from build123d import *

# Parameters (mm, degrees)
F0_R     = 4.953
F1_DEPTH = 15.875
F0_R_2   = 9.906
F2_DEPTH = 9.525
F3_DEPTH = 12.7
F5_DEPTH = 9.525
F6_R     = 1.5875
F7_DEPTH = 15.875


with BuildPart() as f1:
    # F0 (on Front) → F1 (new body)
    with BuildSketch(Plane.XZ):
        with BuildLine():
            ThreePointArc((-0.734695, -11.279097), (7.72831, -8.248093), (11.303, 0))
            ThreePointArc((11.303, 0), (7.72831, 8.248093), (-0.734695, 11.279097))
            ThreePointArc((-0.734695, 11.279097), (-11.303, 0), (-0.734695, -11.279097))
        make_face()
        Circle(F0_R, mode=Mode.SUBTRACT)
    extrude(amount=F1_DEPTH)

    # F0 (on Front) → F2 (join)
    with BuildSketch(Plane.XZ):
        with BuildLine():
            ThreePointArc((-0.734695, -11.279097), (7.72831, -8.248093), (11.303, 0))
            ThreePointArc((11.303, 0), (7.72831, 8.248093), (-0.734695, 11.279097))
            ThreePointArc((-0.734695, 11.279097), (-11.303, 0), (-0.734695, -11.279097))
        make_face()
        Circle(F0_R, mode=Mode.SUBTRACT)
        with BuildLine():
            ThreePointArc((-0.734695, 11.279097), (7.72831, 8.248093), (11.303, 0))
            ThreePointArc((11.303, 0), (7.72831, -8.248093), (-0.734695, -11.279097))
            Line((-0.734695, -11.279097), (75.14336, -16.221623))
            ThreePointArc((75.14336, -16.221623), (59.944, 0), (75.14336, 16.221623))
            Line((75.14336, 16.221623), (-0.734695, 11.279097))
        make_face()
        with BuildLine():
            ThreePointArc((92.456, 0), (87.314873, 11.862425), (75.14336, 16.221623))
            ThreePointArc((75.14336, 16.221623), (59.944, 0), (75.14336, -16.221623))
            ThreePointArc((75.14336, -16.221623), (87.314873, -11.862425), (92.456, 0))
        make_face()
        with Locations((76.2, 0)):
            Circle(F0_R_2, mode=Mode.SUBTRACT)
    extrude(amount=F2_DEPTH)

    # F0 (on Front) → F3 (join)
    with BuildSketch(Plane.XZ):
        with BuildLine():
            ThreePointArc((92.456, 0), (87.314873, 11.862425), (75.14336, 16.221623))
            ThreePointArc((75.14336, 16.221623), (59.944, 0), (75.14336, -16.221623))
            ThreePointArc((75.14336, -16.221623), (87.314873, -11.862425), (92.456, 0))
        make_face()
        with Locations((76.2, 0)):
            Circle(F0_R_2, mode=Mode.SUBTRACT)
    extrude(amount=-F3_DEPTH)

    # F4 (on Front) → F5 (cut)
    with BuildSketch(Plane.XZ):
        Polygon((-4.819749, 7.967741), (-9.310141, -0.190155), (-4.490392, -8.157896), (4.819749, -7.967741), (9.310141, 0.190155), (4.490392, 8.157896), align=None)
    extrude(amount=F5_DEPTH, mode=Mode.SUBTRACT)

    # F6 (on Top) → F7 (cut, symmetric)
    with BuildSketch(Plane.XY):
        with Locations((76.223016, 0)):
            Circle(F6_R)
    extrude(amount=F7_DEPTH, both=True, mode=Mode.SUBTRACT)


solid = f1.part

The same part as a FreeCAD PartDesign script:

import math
import FreeCAD as App
import Part
import Sketcher
from FreeCAD import Vector
Q = App.Units.Quantity


def add_polygon(sketch, points):
    """Adds a closed chain of lines whose ends are joined by coincident constraints."""
    first, n = sketch.GeometryCount, len(points)
    for a, b in zip(points, points[1:] + points[:1]):
        sketch.addGeometry(Part.LineSegment(App.Vector(*a, 0), App.Vector(*b, 0)), False)
    for i in range(n):
        sketch.addConstraint(Sketcher.Constraint("Coincident", first + i, 2, first + (i + 1) % n, 1))

doc = App.newDocument("Part")
params = doc.addObject("Spreadsheet::Sheet", "Params")
for row, (alias, value) in enumerate([
    ("sketch1_diameter", "0.39 in"),
    ("sketch1_radius", "0.445 in"),
    ("pad1_length", "0.625 in"),
    ("sketch2_diameter", "0.39 in"),
    ("sketch2_diameter2", "0.78 in"),
    ("sketch2_radius", "0.64 in"),
    ("sketch2_radius2", "0.445 in"),
    ("pad2_length", "0.375 in"),
    ("sketch3_diameter", "0.78 in"),
    ("sketch3_radius", "0.64 in"),
    ("pad3_length", "0.5 in"),
    ("pocket1_length", "0.375 in"),
    ("sketch5_diameter", "0.125 in"),
    ("pocket2_length", "1.25 in"),
], start=1):
    params.set(f"A{row}", alias)
    params.set(f"B{row}", "=" + value)
    params.setAlias(f"B{row}", alias)

body = doc.addObject("PartDesign::Body", "Body")

# Sketch on XZ plane
sketch1 = body.newObject("Sketcher::SketchObject", "Sketch")
sketch1.AttachmentSupport = (doc.getObject("XZ_Plane"), [""])
sketch1.MapMode = "FlatFace"
sketch1.addGeometry(Part.ArcOfCircle(Part.Circle(Vector(0.000001, -0.000001, 0), Vector(0, 0, 1), 11.302999), math.radians(-93.726857), math.radians(0.000003)), False)
sketch1.addGeometry(Part.ArcOfCircle(Part.Circle(Vector(0.000001, 0.000001, 0), Vector(0, 0, 1), 11.302999), math.radians(-0.000003), math.radians(93.726857)), False)
sketch1.addGeometry(Part.ArcOfCircle(Part.Circle(Vector(0, 0, 0), Vector(0, 0, 1), 11.303), math.radians(93.726852), math.radians(266.273148)), False)
sketch1.addGeometry(Part.Circle(Vector(0, 0, 0), Vector(0, 0, 1), 4.953), False)
sketch1.addConstraint(Sketcher.Constraint("Tangent", 0, 2, 1, 1))
sketch1.addConstraint(Sketcher.Constraint("Tangent", 1, 2, 2, 1))
sketch1.addConstraint(Sketcher.Constraint("Tangent", 2, 2, 0, 1))
sketch1.addConstraint(Sketcher.Constraint("Coincident", 0, 3, -1, 1))
sketch1.addConstraint(Sketcher.Constraint("Coincident", 3, 3, -1, 1))
sketch1.addConstraint(Sketcher.Constraint("PointOnObject", 0, 2, -1))
sketch1.addConstraint(Sketcher.Constraint("Vertical", 1, 2, 2, 2))
sketch1.addConstraint(Sketcher.Constraint("Diameter", 3, Q("0.39 in")))
sketch1.addConstraint(Sketcher.Constraint("Radius", 0, Q("0.445 in")))
sketch1.addConstraint(Sketcher.Constraint("DistanceX", 1, 2, -1, 1, Q("0.734695 mm")))
sketch1.setExpression("Constraints[7]", "Params.sketch1_diameter")
sketch1.setExpression("Constraints[8]", "Params.sketch1_radius")
pad1 = body.newObject("PartDesign::Pad", "Pad")
pad1.Profile = sketch1
pad1.setExpression("Length", "Params.pad1_length")

# Sketch on XZ plane
sketch2 = body.newObject("Sketcher::SketchObject", "Sketch001")
sketch2.AttachmentSupport = (doc.getObject("XZ_Plane"), [""])
sketch2.MapMode = "FlatFace"
sketch2.addGeometry(Part.ArcOfCircle(Part.Circle(Vector(0, 0, 0), Vector(0, 0, 1), 11.303), math.radians(93.726852), math.radians(266.273148)), False)
sketch2.addGeometry(Part.LineSegment(Vector(-0.734695, -11.279097, 0), Vector(75.14336, -16.221623, 0)), False)
sketch2.addGeometry(Part.ArcOfCircle(Part.Circle(Vector(76.199999, 0.000001, 0), Vector(0, 0, 1), 16.256001), math.radians(-93.72685), math.radians(-0.000002)), False)
sketch2.addGeometry(Part.ArcOfCircle(Part.Circle(Vector(76.199999, -0.000001, 0), Vector(0, 0, 1), 16.256001), math.radians(0.000002), math.radians(93.72685)), False)
sketch2.addGeometry(Part.LineSegment(Vector(75.14336, 16.221623, 0), Vector(-0.734695, 11.279097, 0)), False)
sketch2.addGeometry(Part.Circle(Vector(0, 0, 0), Vector(0, 0, 1), 4.953), False)
sketch2.addGeometry(Part.Circle(Vector(76.2, 0, 0), Vector(0, 0, 1), 9.906), False)
sketch2.addConstraint(Sketcher.Constraint("Tangent", 0, 2, 1, 1))
sketch2.addConstraint(Sketcher.Constraint("Tangent", 1, 2, 2, 1))
sketch2.addConstraint(Sketcher.Constraint("Tangent", 2, 2, 3, 1))
sketch2.addConstraint(Sketcher.Constraint("Tangent", 3, 2, 4, 1))
sketch2.addConstraint(Sketcher.Constraint("Tangent", 4, 2, 0, 1))
sketch2.addConstraint(Sketcher.Constraint("Coincident", 0, 3, -1, 1))
sketch2.addConstraint(Sketcher.Constraint("Coincident", 5, 3, -1, 1))
sketch2.addConstraint(Sketcher.Constraint("Coincident", 6, 3, 2, 3))
sketch2.addConstraint(Sketcher.Constraint("Equal", 2, 3))
sketch2.addConstraint(Sketcher.Constraint("PointOnObject", 2, 3, -1))
sketch2.addConstraint(Sketcher.Constraint("PointOnObject", 2, 2, -1))
sketch2.addConstraint(Sketcher.Constraint("Diameter", 5, Q("0.39 in")))
sketch2.addConstraint(Sketcher.Constraint("Diameter", 6, Q("0.78 in")))
sketch2.addConstraint(Sketcher.Constraint("Radius", 2, Q("0.64 in")))
sketch2.addConstraint(Sketcher.Constraint("DistanceX", -1, 1, 2, 3, Q("3 in")))
sketch2.addConstraint(Sketcher.Constraint("Radius", 0, Q("0.445 in")))
sketch2.setExpression("Constraints[11]", "Params.sketch2_diameter")
sketch2.setExpression("Constraints[12]", "Params.sketch2_diameter2")
sketch2.setExpression("Constraints[13]", "Params.sketch2_radius")
sketch2.setExpression("Constraints[15]", "Params.sketch2_radius2")
pad2 = body.newObject("PartDesign::Pad", "Pad001")
pad2.Profile = sketch2
pad2.setExpression("Length", "Params.pad2_length")

# Sketch on XZ plane
sketch3 = body.newObject("Sketcher::SketchObject", "Sketch002")
sketch3.AttachmentSupport = (doc.getObject("XZ_Plane"), [""])
sketch3.MapMode = "FlatFace"
sketch3.addGeometry(Part.ArcOfCircle(Part.Circle(Vector(76.199999, -0.000001, 0), Vector(0, 0, 1), 16.256001), math.radians(0.000002), math.radians(93.72685)), False)
sketch3.addGeometry(Part.ArcOfCircle(Part.Circle(Vector(76.2, 0, 0), Vector(0, 0, 1), 16.256), math.radians(93.726854), math.radians(266.273146)), False)
sketch3.addGeometry(Part.ArcOfCircle(Part.Circle(Vector(76.199999, 0.000001, 0), Vector(0, 0, 1), 16.256001), math.radians(-93.72685), math.radians(-0.000002)), False)
sketch3.addGeometry(Part.Circle(Vector(76.2, 0, 0), Vector(0, 0, 1), 9.906), False)
sketch3.addConstraint(Sketcher.Constraint("Tangent", 0, 2, 1, 1))
sketch3.addConstraint(Sketcher.Constraint("Tangent", 1, 2, 2, 1))
sketch3.addConstraint(Sketcher.Constraint("Tangent", 2, 2, 0, 1))
sketch3.addConstraint(Sketcher.Constraint("Coincident", 3, 3, 0, 3))
sketch3.addConstraint(Sketcher.Constraint("Symmetric", 0, 2, 1, 2, -1))
sketch3.addConstraint(Sketcher.Constraint("PointOnObject", 2, 2, -1))
sketch3.addConstraint(Sketcher.Constraint("Diameter", 3, Q("0.78 in")))
sketch3.addConstraint(Sketcher.Constraint("Radius", 0, Q("0.64 in")))
sketch3.addConstraint(Sketcher.Constraint("DistanceX", -1, 1, 0, 3, Q("3 in")))
sketch3.addConstraint(Sketcher.Constraint("DistanceX", -1, 1, 0, 2, Q("2.9584 in")))
sketch3.setExpression("Constraints[6]", "Params.sketch3_diameter")
sketch3.setExpression("Constraints[7]", "Params.sketch3_radius")
pad3 = body.newObject("PartDesign::Pad", "Pad002")
pad3.Profile = sketch3
pad3.setExpression("Length", "Params.pad3_length")
pad3.Reversed = True

# Sketch on XZ plane
sketch4 = body.newObject("Sketcher::SketchObject", "Sketch003")
sketch4.AttachmentSupport = (doc.getObject("XZ_Plane"), [""])
sketch4.MapMode = "FlatFace"
add_polygon(sketch4, [(-4.819749, 7.967741), (-9.310141, -0.190155), (-4.490392, -8.157896), (4.819749, -7.967741), (9.310141, 0.190155), (4.490392, 8.157896)])  # lines 0-5
sketch4.addConstraint(Sketcher.Constraint("Symmetric", 0, 2, 3, 2, -1, 1))
sketch4.addConstraint(Sketcher.Constraint("Symmetric", 1, 2, 4, 2, -1, 1))
sketch4.addConstraint(Sketcher.Constraint("Symmetric", 2, 2, 5, 2, -1, 1))
sketch4.addConstraint(Sketcher.Constraint("Equal", 0, 1))
sketch4.addConstraint(Sketcher.Constraint("Equal", 1, 2))
sketch4.addConstraint(Sketcher.Constraint("DistanceX", 0, 2, -1, 1, Q("9.310141 mm")))
sketch4.addConstraint(Sketcher.Constraint("DistanceX", -1, 1, 2, 2, Q("4.819749 mm")))
sketch4.addConstraint(Sketcher.Constraint("DistanceY", 2, 2, -1, 1, Q("7.967741 mm")))
sketch4.addConstraint(Sketcher.Constraint("DistanceX", 0, 2, 1, 2, Q("4.819749 mm")))
pocket1 = body.newObject("PartDesign::Pocket", "Pocket")
pocket1.Profile = sketch4
pocket1.setExpression("Length", "Params.pocket1_length")
pocket1.Reversed = True

# Sketch on XY plane
sketch5 = body.newObject("Sketcher::SketchObject", "Sketch004")
sketch5.AttachmentSupport = (doc.getObject("XY_Plane"), [""])
sketch5.MapMode = "FlatFace"
sketch5.addGeometry(Part.Circle(Vector(76.223016, 0, 0), Vector(0, 0, 1), 1.5875), False)
sketch5.addConstraint(Sketcher.Constraint("PointOnObject", 0, 3, -1))
sketch5.addConstraint(Sketcher.Constraint("Diameter", 0, Q("0.125 in")))
sketch5.addConstraint(Sketcher.Constraint("DistanceX", -1, 1, 0, 3, Q("76.223016 mm")))
sketch5.setExpression("Constraints[1]", "Params.sketch5_diameter")
pocket2 = body.newObject("PartDesign::Pocket", "Pocket001")
pocket2.Profile = sketch5
pocket2.setExpression("Length", "Params.pocket2_length")
pocket2.Midplane = True

doc.recompute()
